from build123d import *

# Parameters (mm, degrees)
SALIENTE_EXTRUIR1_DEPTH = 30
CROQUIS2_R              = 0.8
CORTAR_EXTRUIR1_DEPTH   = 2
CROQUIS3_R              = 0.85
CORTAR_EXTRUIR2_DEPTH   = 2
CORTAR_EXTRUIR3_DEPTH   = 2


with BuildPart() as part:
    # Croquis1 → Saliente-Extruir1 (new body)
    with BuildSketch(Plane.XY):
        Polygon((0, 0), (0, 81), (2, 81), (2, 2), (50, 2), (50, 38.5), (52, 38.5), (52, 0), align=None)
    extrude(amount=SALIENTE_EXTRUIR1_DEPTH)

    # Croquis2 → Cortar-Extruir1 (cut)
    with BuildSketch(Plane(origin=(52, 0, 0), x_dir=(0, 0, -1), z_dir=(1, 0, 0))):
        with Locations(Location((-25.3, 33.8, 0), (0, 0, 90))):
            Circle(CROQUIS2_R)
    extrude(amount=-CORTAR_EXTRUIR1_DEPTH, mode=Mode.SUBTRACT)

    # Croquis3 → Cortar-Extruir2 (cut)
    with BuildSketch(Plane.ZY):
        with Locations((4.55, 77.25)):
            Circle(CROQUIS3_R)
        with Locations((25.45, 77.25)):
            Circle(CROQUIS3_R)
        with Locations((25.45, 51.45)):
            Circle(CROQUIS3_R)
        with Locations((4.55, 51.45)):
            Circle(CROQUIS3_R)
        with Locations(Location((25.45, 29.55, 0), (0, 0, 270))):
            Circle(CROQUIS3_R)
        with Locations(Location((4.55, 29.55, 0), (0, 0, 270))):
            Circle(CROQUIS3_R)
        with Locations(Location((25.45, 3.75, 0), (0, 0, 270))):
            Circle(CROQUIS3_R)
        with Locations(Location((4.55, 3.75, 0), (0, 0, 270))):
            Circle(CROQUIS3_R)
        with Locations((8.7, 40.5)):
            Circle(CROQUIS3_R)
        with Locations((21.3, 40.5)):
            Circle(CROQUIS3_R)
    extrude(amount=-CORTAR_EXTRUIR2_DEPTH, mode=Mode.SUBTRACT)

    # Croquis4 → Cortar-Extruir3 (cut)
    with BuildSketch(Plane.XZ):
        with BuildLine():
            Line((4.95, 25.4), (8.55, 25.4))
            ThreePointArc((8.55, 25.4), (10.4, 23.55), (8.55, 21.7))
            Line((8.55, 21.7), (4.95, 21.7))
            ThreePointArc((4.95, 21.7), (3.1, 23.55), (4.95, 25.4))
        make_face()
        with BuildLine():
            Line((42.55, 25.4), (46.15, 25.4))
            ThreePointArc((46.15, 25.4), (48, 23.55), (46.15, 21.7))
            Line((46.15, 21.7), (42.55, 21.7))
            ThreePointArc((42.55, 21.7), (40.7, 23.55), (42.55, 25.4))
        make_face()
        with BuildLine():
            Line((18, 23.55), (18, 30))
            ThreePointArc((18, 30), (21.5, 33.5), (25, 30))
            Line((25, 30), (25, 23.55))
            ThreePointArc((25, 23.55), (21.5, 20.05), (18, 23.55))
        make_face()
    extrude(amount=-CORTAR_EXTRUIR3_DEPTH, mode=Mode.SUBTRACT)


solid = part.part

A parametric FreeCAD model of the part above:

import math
import FreeCAD as App
import Part
import Sketcher
from FreeCAD import Vector
Q = App.Units.Quantity

doc = App.newDocument("Part")
params = doc.addObject("Spreadsheet::Sheet", "Params")
for row, (alias, value) in enumerate([
    ("sketch1_width", "52 mm"),
    ("sketch1_width2", "2 mm"),
    ("sketch1_height", "81 mm"),
    ("sketch1_height2", "79 mm"),
    ("sketch1_height3", "38.5 mm"),
    ("pad1_length", "30 mm"),
    ("sketch2_diameter", "1.6 mm"),
    ("pocket1_length", "2 mm"),
    ("sketch3_diameter", "1.7 mm"),
    ("pocket2_length", "2 mm"),
    ("sketch4_radius", "3.5 mm"),
    ("sketch4_radius2", "1.85 mm"),
    ("sketch4_width", "3.6 mm"),
    ("sketch4_height", "6.45 mm"),
    ("pocket3_length", "2 mm"),
], start=1):
    params.set(f"A{row}", alias)
    params.set(f"B{row}", "=" + value)
    params.setAlias(f"B{row}", alias)

body = doc.addObject("PartDesign::Body", "Body")

# Sketch on XY plane
sketch1 = doc.addObject("Sketcher::SketchObject", "Sketch")
body.addObject(sketch1)
sketch1.AttachmentSupport = (doc.XY_Plane, [""])
sketch1.MapMode = "FlatFace"
sketch1.addGeometry([
    Part.LineSegment(Vector(0, 81, 0), Vector(0, 0, 0)),  # 0
    Part.LineSegment(Vector(0, 0, 0), Vector(52, 0, 0)),  # 1
    Part.LineSegment(Vector(52, 0, 0), Vector(52, 38.5, 0)),  # 2
    Part.LineSegment(Vector(52, 38.5, 0), Vector(50, 38.5, 0)),  # 3
    Part.LineSegment(Vector(50, 38.5, 0), Vector(50, 2, 0)),  # 4
    Part.LineSegment(Vector(50, 2, 0), Vector(2, 2, 0)),  # 5
    Part.LineSegment(Vector(2, 2, 0), Vector(2, 81, 0)),  # 6
    Part.LineSegment(Vector(2, 81, 0), Vector(0, 81, 0)),  # 7
], False)
sketch1.addConstraint([
    Sketcher.Constraint("Coincident", 0, 2, 1, 1),
    Sketcher.Constraint("Coincident", 1, 2, 2, 1),
    Sketcher.Constraint("Coincident", 2, 2, 3, 1),
    Sketcher.Constraint("Coincident", 3, 2, 4, 1),
    Sketcher.Constraint("Coincident", 4, 2, 5, 1),
    Sketcher.Constraint("Coincident", 5, 2, 6, 1),
    Sketcher.Constraint("Coincident", 6, 2, 7, 1),
    Sketcher.Constraint("Coincident", 7, 2, 0, 1),
    Sketcher.Constraint("Vertical", 0),
    Sketcher.Constraint("Horizontal", 1),
    Sketcher.Constraint("Vertical", 2),
    Sketcher.Constraint("Horizontal", 3),
    Sketcher.Constraint("Vertical", 4),
    Sketcher.Constraint("Horizontal", 5),
    Sketcher.Constraint("Vertical", 6),
    Sketcher.Constraint("Horizontal", 7),
    Sketcher.Constraint("Coincident", 0, 2, -1, 1),
    Sketcher.Constraint("Equal", 3, 7),
    Sketcher.Constraint("DistanceX", 1, 1, 1, 2, Q("52 mm")),
    Sketcher.Constraint("DistanceX", 3, 2, 3, 1, Q("2 mm")),
    Sketcher.Constraint("DistanceY", 0, 2, 0, 1, Q("81 mm")),
    Sketcher.Constraint("DistanceY", 6, 1, 6, 2, Q("79 mm")),
    Sketcher.Constraint("DistanceY", 2, 1, 2, 2, Q("38.5 mm")),
])
sketch1.setExpression("Constraints[18]", "Params.sketch1_width")
sketch1.setExpression("Constraints[19]", "Params.sketch1_width2")
sketch1.setExpression("Constraints[20]", "Params.sketch1_height")
sketch1.setExpression("Constraints[21]", "Params.sketch1_height2")
sketch1.setExpression("Constraints[22]", "Params.sketch1_height3")
pad1 = doc.addObject("PartDesign::Pad", "Pad")
body.addObject(pad1)
pad1.Profile = sketch1
pad1.setExpression("Length", "Params.pad1_length")

# Sketch on YZ plane
sketch2 = doc.addObject("Sketcher::SketchObject", "Sketch001")
body.addObject(sketch2)
sketch2.AttachmentSupport = (doc.YZ_Plane, [""])
sketch2.MapMode = "FlatFace"
sketch2.AttachmentOffset = App.Placement(Vector(0, 0, 52), App.Rotation())
sketch2.addGeometry(Part.Circle(Vector(33.8, 25.3, 0), Vector(0, 0, 1), 0.8), False)
sketch2.addConstraint([
    Sketcher.Constraint("Diameter", 0, Q("1.6 mm")),
    Sketcher.Constraint("DistanceX", -1, 1, 0, 3, Q("33.8 mm")),
    Sketcher.Constraint("DistanceY", -1, 1, 0, 3, Q("25.3 mm")),
])
sketch2.setExpression("Constraints[0]", "Params.sketch2_diameter")
pocket1 = doc.addObject("PartDesign::Pocket", "Pocket")
body.addObject(pocket1)
pocket1.Profile = sketch2
pocket1.setExpression("Length", "Params.pocket1_length")

# Sketch on YZ plane
sketch3 = doc.addObject("Sketcher::SketchObject", "Sketch002")
body.addObject(sketch3)
sketch3.AttachmentSupport = (doc.YZ_Plane, [""])
sketch3.MapMode = "FlatFace"
sketch3.addGeometry([
    Part.Circle(Vector(77.2, 4.5, 0), Vector(0, 0, 1), 0.8),  # 0
    Part.Circle(Vector(77.2, 25.4, 0), Vector(0, 0, 1), 0.8),  # 1
    Part.Circle(Vector(51.5, 25.4, 0), Vector(0, 0, 1), 0.8),  # 2
    Part.Circle(Vector(51.5, 4.5, 0), Vector(0, 0, 1), 0.8),  # 3
    Part.Circle(Vector(29.6, 25.4, 0), Vector(0, 0, 1), 0.8),  # 4
    Part.Circle(Vector(29.6, 4.5, 0), Vector(0, 0, 1), 0.8),  # 5
    Part.Circle(Vector(3.8, 25.4, 0), Vector(0, 0, 1), 0.8),  # 6
    Part.Circle(Vector(3.8, 4.5, 0), Vector(0, 0, 1), 0.8),  # 7
    Part.Circle(Vector(40.5, 8.7, 0), Vector(0, 0, 1), 0.8),  # 8
    Part.Circle(Vector(40.5, 21.3, 0), Vector(0, 0, 1), 0.8),  # 9
], False)
sketch3.addConstraint([
    Sketcher.Constraint("Equal", 0, 1),
    Sketcher.Constraint("Equal", 1, 2),
    Sketcher.Constraint("Equal", 2, 3),
    Sketcher.Constraint("Equal", 3, 4),
    Sketcher.Constraint("Equal", 4, 5),
    Sketcher.Constraint("Equal", 5, 6),
    Sketcher.Constraint("Equal", 6, 7),
    Sketcher.Constraint("Equal", 7, 8),
    Sketcher.Constraint("Equal", 8, 9),
    Sketcher.Constraint("Horizontal", 1, 3, 2, 3),
    Sketcher.Constraint("Horizontal", 0, 3, 3, 3),
    Sketcher.Constraint("Horizontal", 2, 3, 4, 3),
    Sketcher.Constraint("Horizontal", 3, 3, 5, 3),
    Sketcher.Constraint("Horizontal", 4, 3, 6, 3),
    Sketcher.Constraint("Horizontal", 5, 3, 7, 3),
    Sketcher.Constraint("Vertical", 0, 3, 1, 3),
    Sketcher.Constraint("Vertical", 2, 3, 3, 3),
    Sketcher.Constraint("Vertical", 4, 3, 5, 3),
    Sketcher.Constraint("Vertical", 6, 3, 7, 3),
    Sketcher.Constraint("Vertical", 8, 3, 9, 3),
    Sketcher.Constraint("Diameter", 0, Q("1.7 mm")),
    Sketcher.Constraint("DistanceX", -1, 1, 8, 3, Q("40.5 mm")),
    Sketcher.Constraint("DistanceY", -1, 1, 8, 3, Q("8.7 mm")),
    Sketcher.Constraint("DistanceY", -1, 1, 9, 3, Q("21.3 mm")),
    Sketcher.Constraint("DistanceY", 0, 3, 1, 3, Q("20.9 mm")),
    Sketcher.Constraint("DistanceX", 2, 3, 1, 3, Q("25.8 mm")),
    Sketcher.Constraint("DistanceX", 4, 3, 2, 3, Q("21.9 mm")),
    Sketcher.Constraint("DistanceX", 6, 3, 4, 3, Q("25.8 mm")),
    Sketcher.Constraint("DistanceX", -1, 1, 0, 3, Q("77.25 mm")),
    Sketcher.Constraint("DistanceY", -1, 1, 0, 3, Q("4.55 mm")),
])
sketch3.setExpression("Constraints[20]", "Params.sketch3_diameter")
pocket2 = doc.addObject("PartDesign::Pocket", "Pocket001")
body.addObject(pocket2)
pocket2.Profile = sketch3
pocket2.setExpression("Length", "Params.pocket2_length")
pocket2.Reversed = True

# Sketch on XZ plane
sketch4 = doc.addObject("Sketcher::SketchObject", "Sketch003")
body.addObject(sketch4)
sketch4.AttachmentSupport = (doc.XZ_Plane, [""])
sketch4.MapMode = "FlatFace"
sketch4.addGeometry([
    Part.LineSegment(Vector(8.6, 25.4, 0), Vector(5, 25.4, 0)),  # 0
    Part.ArcOfCircle(Part.Circle(Vector(5, 23.6, 0), Vector(0, 0, 1), 1.9), math.radians(90), math.radians(270)),  # 1
    Part.LineSegment(Vector(5, 21.7, 0), Vector(8.6, 21.7, 0)),  # 2
    Part.ArcOfCircle(Part.Circle(Vector(8.6, 23.6, 0), Vector(0, 0, 1), 1.9), math.radians(-90), math.radians(90)),  # 3
    Part.LineSegment(Vector(46.1, 25.4, 0), Vector(42.5, 25.4, 0)),  # 4
    Part.ArcOfCircle(Part.Circle(Vector(42.5, 23.6, 0), Vector(0, 0, 1), 1.9), math.radians(90), math.radians(270)),  # 5
    Part.LineSegment(Vector(42.5, 21.7, 0), Vector(46.1, 21.7, 0)),  # 6
    Part.ArcOfCircle(Part.Circle(Vector(46.1, 23.6, 0), Vector(0, 0, 1), 1.9), math.radians(-90), math.radians(90)),  # 7
    Part.LineSegment(Vector(18, 30, 0), Vector(18, 23.6, 0)),  # 8
    Part.ArcOfCircle(Part.Circle(Vector(21.5, 23.6, 0), Vector(0, 0, 1), 3.5), math.radians(180), math.radians(360)),  # 9
    Part.LineSegment(Vector(25, 23.6, 0), Vector(25, 30, 0)),  # 10
    Part.ArcOfCircle(Part.Circle(Vector(21.5, 30, 0), Vector(0, 0, 1), 3.5), math.radians(0), math.radians(180)),  # 11
], False)
sketch4.addConstraint([
    Sketcher.Constraint("Tangent", 0, 2, 1, 1),
    Sketcher.Constraint("Tangent", 1, 2, 2, 1),
    Sketcher.Constraint("Tangent", 2, 2, 3, 1),
    Sketcher.Constraint("Tangent", 3, 2, 0, 1),
    Sketcher.Constraint("Tangent", 4, 2, 5, 1),
    Sketcher.Constraint("Tangent", 5, 2, 6, 1),
    Sketcher.Constraint("Tangent", 6, 2, 7, 1),
    Sketcher.Constraint("Tangent", 7, 2, 4, 1),
    Sketcher.Constraint("Tangent", 8, 2, 9, 1),
    Sketcher.Constraint("Tangent", 9, 2, 10, 1),
    Sketcher.Constraint("Tangent", 10, 2, 11, 1),
    Sketcher.Constraint("Tangent", 11, 2, 8, 1),
    Sketcher.Constraint("Horizontal", 0),
    Sketcher.Constraint("Horizontal", 2),
    Sketcher.Constraint("Horizontal", 4),
    Sketcher.Constraint("Horizontal", 6),
    Sketcher.Constraint("Vertical", 8),
    Sketcher.Constraint("Vertical", 10),
    Sketcher.Constraint("Equal", 3, 5),
    Sketcher.Constraint("Horizontal", 3, 3, 5, 3),
    Sketcher.Constraint("Horizontal", 7, 3, 9, 3),
    Sketcher.Constraint("Equal", 2, 4),
    Sketcher.Constraint("Radius", 9, Q("3.5 mm")),
    Sketcher.Constraint("Radius", 1, Q("1.85 mm")),
    Sketcher.Constraint("DistanceX", 0, 2, 0, 1, Q("3.6 mm")),
    Sketcher.Constraint("DistanceY", -1, 1, 11, 3, Q("30 mm")),
    Sketcher.Constraint("DistanceX", -1, 1, 8, 2, Q("18 mm")),
    Sketcher.Constraint("DistanceX", 3, 3, 5, 3, Q("34 mm")),
    Sketcher.Constraint("DistanceY", 8, 2, 8, 1, Q("6.45 mm")),
    Sketcher.Constraint("DistanceX", -1, 1, 1, 3, Q("4.95 mm")),
])
sketch4.setExpression("Constraints[22]", "Params.sketch4_radius")
sketch4.setExpression("Constraints[23]", "Params.sketch4_radius2")
sketch4.setExpression("Constraints[24]", "Params.sketch4_width")
sketch4.setExpression("Constraints[28]", "Params.sketch4_height")
pocket3 = doc.addObject("PartDesign::Pocket", "Pocket002")
body.addObject(pocket3)
pocket3.Profile = sketch4
pocket3.setExpression("Length", "Params.pocket3_length")

doc.recompute()
